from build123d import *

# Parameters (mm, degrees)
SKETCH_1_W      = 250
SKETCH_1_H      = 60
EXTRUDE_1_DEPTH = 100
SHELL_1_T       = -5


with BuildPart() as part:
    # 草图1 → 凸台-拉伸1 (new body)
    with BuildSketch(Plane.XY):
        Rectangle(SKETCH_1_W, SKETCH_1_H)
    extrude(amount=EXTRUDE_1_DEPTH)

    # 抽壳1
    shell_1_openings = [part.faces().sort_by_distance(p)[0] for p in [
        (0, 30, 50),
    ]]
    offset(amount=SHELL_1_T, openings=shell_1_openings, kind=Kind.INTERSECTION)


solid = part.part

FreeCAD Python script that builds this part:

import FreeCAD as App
import Part
import Sketcher

V = App.Vector
Q = App.Units.Quantity


def faces_at(feature, points):
    """Names of the faces that lie closest to the given points."""
    faces = feature.Shape.Faces
    near = lambda p: min(range(len(faces)), key=lambda i: faces[i].distToShape(Part.Vertex(*p))[0])
    return sorted({f"Face{near(p) + 1}" for p in points})


def add_polygon(sketch, points):
    """Adds a closed chain of lines whose ends are joined by coincident constraints."""
    first, n = sketch.GeometryCount, len(points)
    for a, b in zip(points, points[1:] + points[:1]):
        sketch.addGeometry(Part.LineSegment(App.Vector(*a, 0), App.Vector(*b, 0)), False)
    for i in range(n):
        sketch.addConstraint(Sketcher.Constraint("Coincident", first + i, 2, first + (i + 1) % n, 1))

doc = App.newDocument("Part")
body = doc.addObject("PartDesign::Body", "Body")

# Sketch on XY plane
sketch1 = body.newObject("Sketcher::SketchObject", "Sketch")
sketch1.AttachmentSupport = (doc.getObject("XY_Plane"), [""])
sketch1.MapMode = "FlatFace"
add_polygon(sketch1, [(-125, 30), (-125, -30), (125, -30), (125, 30)])  # lines 0-3
sketch1.addConstraint([
    Sketcher.Constraint("Vertical", 0),
    Sketcher.Constraint("Horizontal", 1),
    Sketcher.Constraint("Vertical", 2),
    Sketcher.Constraint("Horizontal", 3),
    Sketcher.Constraint("Symmetric", 0, 2, 2, 2, -1, 1),
    Sketcher.Constraint("DistanceX", 1, 1, 1, 2, Q("250 mm")),
    Sketcher.Constraint("DistanceY", 0, 2, 0, 1, Q("60 mm")),
])
pad1 = body.newObject("PartDesign::Pad", "Pad")
pad1.Profile = sketch1
pad1.Length = 100
doc.recompute()

thickness = body.newObject("PartDesign::Thickness", "Thickness")
thickness.Base = (pad1, faces_at(pad1, [(0, 30, 50)]))
thickness.Value = 5
thickness.Reversed = True
thickness.Join = "Intersection"

doc.recompute()
